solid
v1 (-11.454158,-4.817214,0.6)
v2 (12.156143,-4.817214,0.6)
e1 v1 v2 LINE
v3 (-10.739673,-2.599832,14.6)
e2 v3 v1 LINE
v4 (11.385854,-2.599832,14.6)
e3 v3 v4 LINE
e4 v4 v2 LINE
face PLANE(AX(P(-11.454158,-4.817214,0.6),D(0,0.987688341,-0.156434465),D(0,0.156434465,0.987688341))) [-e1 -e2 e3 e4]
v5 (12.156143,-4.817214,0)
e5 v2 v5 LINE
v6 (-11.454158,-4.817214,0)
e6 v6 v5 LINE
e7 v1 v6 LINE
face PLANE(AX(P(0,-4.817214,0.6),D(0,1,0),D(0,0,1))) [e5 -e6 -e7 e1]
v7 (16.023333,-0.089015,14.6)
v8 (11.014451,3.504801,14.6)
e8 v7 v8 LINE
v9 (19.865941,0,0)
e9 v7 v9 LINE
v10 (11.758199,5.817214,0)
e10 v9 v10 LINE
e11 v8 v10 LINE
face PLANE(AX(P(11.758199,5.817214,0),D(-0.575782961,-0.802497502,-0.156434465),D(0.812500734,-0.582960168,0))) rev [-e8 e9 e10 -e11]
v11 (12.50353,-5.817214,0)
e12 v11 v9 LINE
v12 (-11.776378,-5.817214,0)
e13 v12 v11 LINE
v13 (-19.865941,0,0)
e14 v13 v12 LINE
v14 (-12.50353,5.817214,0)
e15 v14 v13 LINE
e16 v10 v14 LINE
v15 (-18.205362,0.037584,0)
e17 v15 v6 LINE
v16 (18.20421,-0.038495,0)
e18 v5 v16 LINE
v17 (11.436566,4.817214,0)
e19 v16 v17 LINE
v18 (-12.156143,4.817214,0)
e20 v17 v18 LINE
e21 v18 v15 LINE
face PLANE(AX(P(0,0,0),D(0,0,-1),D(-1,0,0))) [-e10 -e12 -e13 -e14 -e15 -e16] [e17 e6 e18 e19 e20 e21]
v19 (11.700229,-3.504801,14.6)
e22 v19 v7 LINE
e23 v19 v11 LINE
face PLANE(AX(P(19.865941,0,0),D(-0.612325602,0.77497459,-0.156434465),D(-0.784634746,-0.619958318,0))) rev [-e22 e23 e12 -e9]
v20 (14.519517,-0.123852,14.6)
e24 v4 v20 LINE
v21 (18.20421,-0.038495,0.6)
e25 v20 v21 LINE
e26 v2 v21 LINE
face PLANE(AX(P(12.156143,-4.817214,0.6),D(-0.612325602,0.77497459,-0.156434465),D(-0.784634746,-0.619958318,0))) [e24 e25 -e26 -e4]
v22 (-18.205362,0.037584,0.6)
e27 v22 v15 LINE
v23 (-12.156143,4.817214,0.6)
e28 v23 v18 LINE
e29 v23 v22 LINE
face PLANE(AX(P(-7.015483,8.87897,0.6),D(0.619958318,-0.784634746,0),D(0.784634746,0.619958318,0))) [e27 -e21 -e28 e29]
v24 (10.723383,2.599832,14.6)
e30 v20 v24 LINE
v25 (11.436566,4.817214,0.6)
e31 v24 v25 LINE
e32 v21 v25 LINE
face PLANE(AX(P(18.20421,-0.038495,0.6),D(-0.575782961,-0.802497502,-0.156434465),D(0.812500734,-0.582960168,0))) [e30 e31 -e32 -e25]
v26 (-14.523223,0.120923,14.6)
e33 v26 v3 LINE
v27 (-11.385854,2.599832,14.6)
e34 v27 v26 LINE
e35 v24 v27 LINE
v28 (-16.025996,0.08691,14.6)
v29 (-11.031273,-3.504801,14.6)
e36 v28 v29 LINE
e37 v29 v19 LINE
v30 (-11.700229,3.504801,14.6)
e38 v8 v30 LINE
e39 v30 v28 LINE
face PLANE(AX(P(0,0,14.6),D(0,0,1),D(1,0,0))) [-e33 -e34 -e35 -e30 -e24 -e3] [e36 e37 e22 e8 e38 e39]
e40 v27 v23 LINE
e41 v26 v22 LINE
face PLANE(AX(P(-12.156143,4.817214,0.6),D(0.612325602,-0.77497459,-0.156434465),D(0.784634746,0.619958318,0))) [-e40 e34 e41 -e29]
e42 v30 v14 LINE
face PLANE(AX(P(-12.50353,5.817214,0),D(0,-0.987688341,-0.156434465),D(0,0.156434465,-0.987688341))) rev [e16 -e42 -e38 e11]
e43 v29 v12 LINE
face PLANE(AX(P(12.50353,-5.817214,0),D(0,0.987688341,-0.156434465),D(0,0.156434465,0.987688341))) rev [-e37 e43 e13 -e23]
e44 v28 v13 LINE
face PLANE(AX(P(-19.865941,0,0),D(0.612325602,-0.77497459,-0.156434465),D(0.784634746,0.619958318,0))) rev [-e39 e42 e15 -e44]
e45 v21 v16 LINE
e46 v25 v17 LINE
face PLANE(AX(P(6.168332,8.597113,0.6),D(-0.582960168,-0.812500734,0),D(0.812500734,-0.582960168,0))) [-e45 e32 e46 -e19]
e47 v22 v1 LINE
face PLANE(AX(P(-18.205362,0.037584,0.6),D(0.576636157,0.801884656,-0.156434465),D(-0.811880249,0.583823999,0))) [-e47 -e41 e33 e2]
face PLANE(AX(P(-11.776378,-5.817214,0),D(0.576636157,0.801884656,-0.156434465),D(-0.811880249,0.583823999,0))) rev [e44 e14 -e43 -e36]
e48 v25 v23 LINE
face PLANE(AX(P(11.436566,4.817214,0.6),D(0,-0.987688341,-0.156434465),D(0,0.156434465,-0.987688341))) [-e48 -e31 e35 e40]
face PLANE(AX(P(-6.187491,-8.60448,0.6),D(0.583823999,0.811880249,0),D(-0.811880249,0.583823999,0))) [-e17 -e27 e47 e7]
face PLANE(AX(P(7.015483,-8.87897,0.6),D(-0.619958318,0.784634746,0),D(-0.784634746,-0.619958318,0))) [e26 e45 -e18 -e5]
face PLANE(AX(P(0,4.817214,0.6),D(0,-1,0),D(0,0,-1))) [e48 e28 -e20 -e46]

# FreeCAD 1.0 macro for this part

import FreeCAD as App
import Part
import Sketcher


def faces_at(feature, points):
    """Names of the faces that lie closest to the given points."""
    faces = feature.Shape.Faces
    near = lambda p: min(range(len(faces)), key=lambda i: faces[i].distToShape(Part.Vertex(*p))[0])
    return sorted({f"Face{near(p) + 1}" for p in points})


def add_polygon(sketch, points):
    """Adds a closed chain of lines whose ends are joined by coincident constraints."""
    first, n = sketch.GeometryCount, len(points)
    for a, b in zip(points, points[1:] + points[:1]):
        sketch.addGeometry(Part.LineSegment(App.Vector(*a, 0), App.Vector(*b, 0)), False)
    for i in range(n):
        sketch.addConstraint(Sketcher.Constraint("Coincident", first + i, 2, first + (i + 1) % n, 1))

doc = App.newDocument("Part")
params = doc.addObject("Spreadsheet::Sheet", "Params")
for row, (alias, value) in enumerate([
    ("pad1_length", "0.6 mm"),
    ("pad2_length", "14 mm"),
    ("draft_angle", "9 deg"),
    ("pad3_length", "16 mm"),
    ("draft2_angle", "9 deg"),
], start=1):
    params.set(f"A{row}", alias)
    params.set(f"B{row}", "=" + value)
    params.setAlias(f"B{row}", alias)

body = doc.addObject("PartDesign::Body", "Body")

sketch1 = body.newObject("Sketcher::SketchObject", "Sketch")
sketch1.AttachmentSupport = (doc.getObject("XY_Plane"), [""])
sketch1.MapMode = "FlatFace"
add_polygon(sketch1, [(20, 0), (12, 6), (-13, 6), (-20, 0), (-12, -6), (13, -6)])
add_polygon(sketch1, [(11, 5), (18, 0), (12, -5), (-11, -5), (-18, 0), (-12, 5)])
sketch1.addConstraint(Sketcher.Constraint("Horizontal", 1))
sketch1.addConstraint(Sketcher.Constraint("Horizontal", 4))
sketch1.addConstraint(Sketcher.Constraint("Horizontal", 8))
sketch1.addConstraint(Sketcher.Constraint("Horizontal", 11))
sketch1.addConstraint(Sketcher.Constraint("Symmetric", 1, 2, 4, 2, -1, 1))
sketch1.addConstraint(Sketcher.Constraint("Symmetric", 2, 2, 5, 2, -1, 1))
sketch1.addConstraint(Sketcher.Constraint("Symmetric", 7, 2, 10, 2, -1, 1))
sketch1.addConstraint(Sketcher.Constraint("PointOnObject", 2, 2, -1))
sketch1.addConstraint(Sketcher.Constraint("Parallel", 0, 6))
sketch1.addConstraint(Sketcher.Constraint("Parallel", 5, 7))
sketch1.addConstraint(Sketcher.Constraint("Parallel", 3, 9))
sketch1.addConstraint(Sketcher.Constraint("Parallel", 7, 10))
sketch1.addConstraint(Sketcher.Constraint("DistanceY", 4, 2, 7, 2, 1.0))
sketch1.addConstraint(Sketcher.Constraint("DistanceX", 8, 2, 8, 1, 23.610302))
sketch1.addConstraint(Sketcher.Constraint("Distance", 6, 8.3294))
sketch1.addConstraint(Sketcher.Constraint("Distance", 10, 7.709598))
sketch1.addConstraint(Sketcher.Constraint("DistanceX", 1, 2, 1, 1, 24.261729))
sketch1.addConstraint(Sketcher.Constraint("DistanceX", 4, 1, 4, 2, 24.279908))
sketch1.addConstraint(Sketcher.Constraint("DistanceX", 11, 1, 11, 2, 23.59271))
sketch1.addConstraint(Sketcher.Constraint("DistanceX", -1, 1, 0, 2, 11.758199))
sketch1.addConstraint(Sketcher.Constraint("DistanceX", 7, 2, 5, 2, 7.709798))
pad1 = body.newObject("PartDesign::Pad", "Pad")
pad1.Profile = sketch1
pad1.setExpression("Length", "Params.pad1_length")
body2 = doc.addObject("PartDesign::Body", "Body001")

sketch2 = body2.newObject("Sketcher::SketchObject", "Sketch001")
sketch2.AttachmentSupport = (doc.getObject("XY_Plane001"), [""])
sketch2.MapMode = "FlatFace"
sketch2.AttachmentOffset = App.Placement(App.Vector(0, 0, 0.6), App.Rotation())
add_polygon(sketch2, [(-13, 6), (-20, 0), (-12, -6), (13, -6), (20, 0), (12, 6)])
add_polygon(sketch2, [(-18, 0), (-12, 5), (11, 5), (18, 0), (12, -5), (-11, -5)])
sketch2.addConstraint(Sketcher.Constraint("Horizontal", 2))
sketch2.addConstraint(Sketcher.Constraint("Horizontal", 5))
sketch2.addConstraint(Sketcher.Constraint("Horizontal", 7))
sketch2.addConstraint(Sketcher.Constraint("Horizontal", 10))
sketch2.addConstraint(Sketcher.Constraint("Symmetric", 0, 2, 3, 2, -1, 1))
sketch2.addConstraint(Sketcher.Constraint("Symmetric", 2, 2, 5, 2, -1, 1))
sketch2.addConstraint(Sketcher.Constraint("Symmetric", 6, 2, 9, 2, -1, 1))
sketch2.addConstraint(Sketcher.Constraint("PointOnObject", 0, 2, -1))
sketch2.addConstraint(Sketcher.Constraint("Parallel", 3, 6))
sketch2.addConstraint(Sketcher.Constraint("Parallel", 4, 8))
sketch2.addConstraint(Sketcher.Constraint("Parallel", 6, 9))
sketch2.addConstraint(Sketcher.Constraint("Parallel", 1, 11))
sketch2.addConstraint(Sketcher.Constraint("DistanceY", 6, 2, 5, 2, 1.0))
sketch2.addConstraint(Sketcher.Constraint("DistanceX", 10, 2, 10, 1, 23.610302))
sketch2.addConstraint(Sketcher.Constraint("Distance", 6, 7.709598))
sketch2.addConstraint(Sketcher.Constraint("Distance", 8, 8.3294))
sketch2.addConstraint(Sketcher.Constraint("DistanceX", 2, 1, 2, 2, 24.279908))
sketch2.addConstraint(Sketcher.Constraint("DistanceX", 5, 2, 5, 1, 24.261729))
sketch2.addConstraint(Sketcher.Constraint("DistanceX", 7, 1, 7, 2, 23.59271))
sketch2.addConstraint(Sketcher.Constraint("DistanceX", -1, 1, 4, 2, 11.758199))
sketch2.addConstraint(Sketcher.Constraint("DistanceX", 0, 2, 6, 2, 7.709798))
pad2 = body2.newObject("PartDesign::Pad", "Pad001")
pad2.Profile = sketch2
pad2.setExpression("Length", "Params.pad2_length")
doc.recompute()

datumplane = body2.newObject("PartDesign::Plane", "DatumPlane")
datumplane.AttachmentSupport = (doc.getObject("XY_Plane001"), [""])
datumplane.MapMode = "FlatFace"
datumplane.AttachmentOffset = App.Placement(App.Vector(0, 0, 0.6), App.Rotation())
draft = body2.newObject("PartDesign::Draft", "Draft")
draft.Base = (pad2, faces_at(pad2, [
    (-16.185, 2.909, 7.6),
    (-15.821, -2.909, 7.6),
    (0.364, -5.817, 7.6),
    (16.185, -2.909, 7.6),
    (15.812, 2.909, 7.6),
    (-0.373, 5.817, 7.6),
    (-0.36, 4.817, 7.6),
    (14.82, 2.389, 7.6),
    (15.18, -2.428, 7.6),
    (0.351, -4.817, 7.6),
    (-14.83, -2.39, 7.6),
    (-15.181, 2.427, 7.6),
]))
draft.NeutralPlane = (datumplane, [""])
draft.setExpression("Angle", "Params.draft_angle")
draft.Reversed = True
doc.recompute()

boolean = body.newObject("PartDesign::Boolean", "Boolean")
boolean.Type = "Fuse"
boolean.addObjects([body2])
body3 = doc.addObject("PartDesign::Body", "Body002")

sketch3 = body3.newObject("Sketcher::SketchObject", "Sketch002")
sketch3.AttachmentSupport = (doc.getObject("XY_Plane002"), [""])
sketch3.MapMode = "FlatFace"
add_polygon(sketch3, [(21, 0), (13, -6), (-12, -6), (-21, 0), (-13, 6), (12, 6)])
add_polygon(sketch3, [(13, -6), (20, 0), (12, 6), (-13, 6), (-20, 0), (-12, -6)])
sketch3.addConstraint(Sketcher.Constraint("Horizontal", 1))
sketch3.addConstraint(Sketcher.Constraint("Horizontal", 4))
sketch3.addConstraint(Sketcher.Constraint("Horizontal", 8))
sketch3.addConstraint(Sketcher.Constraint("Horizontal", 11))
sketch3.addConstraint(Sketcher.Constraint("Symmetric", 0, 2, 3, 2, -1, 1))
sketch3.addConstraint(Sketcher.Constraint("Symmetric", 6, 2, 9, 2, -1, 1))
sketch3.addConstraint(Sketcher.Constraint("Symmetric", 8, 2, 11, 2, -1, 1))
sketch3.addConstraint(Sketcher.Constraint("PointOnObject", 6, 2, -1))
sketch3.addConstraint(Sketcher.Constraint("Parallel", 0, 3))
sketch3.addConstraint(Sketcher.Constraint("Parallel", 3, 6))
sketch3.addConstraint(Sketcher.Constraint("Parallel", 5, 7))
sketch3.addConstraint(Sketcher.Constraint("Parallel", 2, 10))
sketch3.addConstraint(Sketcher.Constraint("DistanceY", 7, 2, 4, 2, 0.6))
sketch3.addConstraint(Sketcher.Constraint("DistanceX", 4, 1, 4, 2, 24.663141))
sketch3.addConstraint(Sketcher.Constraint("DistanceX", 8, 2, 8, 1, 24.261729))
sketch3.addConstraint(Sketcher.Constraint("DistanceX", 11, 1, 11, 2, 24.279908))
sketch3.addConstraint(Sketcher.Constraint("DistanceX", -1, 1, 7, 2, 11.758199))
sketch3.addConstraint(Sketcher.Constraint("DistanceX", 4, 2, 5, 2, 8.911801))
sketch3.addConstraint(Sketcher.Constraint("Distance", 5, 10.96836))
sketch3.addConstraint(Sketcher.Constraint("Distance", 7, 9.97875))
sketch3.addConstraint(Sketcher.Constraint("DistanceX", 1, 2, 1, 1, 24.681672))
pad3 = body3.newObject("PartDesign::Pad", "Pad002")
pad3.Profile = sketch3
pad3.setExpression("Length", "Params.pad3_length")
doc.recompute()

draft2 = body3.newObject("PartDesign::Draft", "Draft001")
draft2.Base = (pad3, faces_at(pad3, [
    (16.787, -3.197, 8),
    (0.371, -6.417, 8),
    (-16.416, -3.22, 8),
    (-16.787, 3.197, 8),
    (-0.38, 6.417, 8),
    (16.407, 3.22, 8),
    (15.812, 2.909, 8),
    (-0.373, 5.817, 8),
    (-16.185, 2.909, 8),
    (-15.821, -2.909, 8),
    (0.364, -5.817, 8),
    (16.185, -2.909, 8),
]))
draft2.NeutralPlane = (doc.getObject("XY_Plane002"), [""])
draft2.setExpression("Angle", "Params.draft2_angle")
draft2.Reversed = True
doc.recompute()

boolean2 = body.newObject("PartDesign::Boolean", "Boolean001")
boolean2.Type = "Cut"
boolean2.addObjects([body3])

doc.recompute()
